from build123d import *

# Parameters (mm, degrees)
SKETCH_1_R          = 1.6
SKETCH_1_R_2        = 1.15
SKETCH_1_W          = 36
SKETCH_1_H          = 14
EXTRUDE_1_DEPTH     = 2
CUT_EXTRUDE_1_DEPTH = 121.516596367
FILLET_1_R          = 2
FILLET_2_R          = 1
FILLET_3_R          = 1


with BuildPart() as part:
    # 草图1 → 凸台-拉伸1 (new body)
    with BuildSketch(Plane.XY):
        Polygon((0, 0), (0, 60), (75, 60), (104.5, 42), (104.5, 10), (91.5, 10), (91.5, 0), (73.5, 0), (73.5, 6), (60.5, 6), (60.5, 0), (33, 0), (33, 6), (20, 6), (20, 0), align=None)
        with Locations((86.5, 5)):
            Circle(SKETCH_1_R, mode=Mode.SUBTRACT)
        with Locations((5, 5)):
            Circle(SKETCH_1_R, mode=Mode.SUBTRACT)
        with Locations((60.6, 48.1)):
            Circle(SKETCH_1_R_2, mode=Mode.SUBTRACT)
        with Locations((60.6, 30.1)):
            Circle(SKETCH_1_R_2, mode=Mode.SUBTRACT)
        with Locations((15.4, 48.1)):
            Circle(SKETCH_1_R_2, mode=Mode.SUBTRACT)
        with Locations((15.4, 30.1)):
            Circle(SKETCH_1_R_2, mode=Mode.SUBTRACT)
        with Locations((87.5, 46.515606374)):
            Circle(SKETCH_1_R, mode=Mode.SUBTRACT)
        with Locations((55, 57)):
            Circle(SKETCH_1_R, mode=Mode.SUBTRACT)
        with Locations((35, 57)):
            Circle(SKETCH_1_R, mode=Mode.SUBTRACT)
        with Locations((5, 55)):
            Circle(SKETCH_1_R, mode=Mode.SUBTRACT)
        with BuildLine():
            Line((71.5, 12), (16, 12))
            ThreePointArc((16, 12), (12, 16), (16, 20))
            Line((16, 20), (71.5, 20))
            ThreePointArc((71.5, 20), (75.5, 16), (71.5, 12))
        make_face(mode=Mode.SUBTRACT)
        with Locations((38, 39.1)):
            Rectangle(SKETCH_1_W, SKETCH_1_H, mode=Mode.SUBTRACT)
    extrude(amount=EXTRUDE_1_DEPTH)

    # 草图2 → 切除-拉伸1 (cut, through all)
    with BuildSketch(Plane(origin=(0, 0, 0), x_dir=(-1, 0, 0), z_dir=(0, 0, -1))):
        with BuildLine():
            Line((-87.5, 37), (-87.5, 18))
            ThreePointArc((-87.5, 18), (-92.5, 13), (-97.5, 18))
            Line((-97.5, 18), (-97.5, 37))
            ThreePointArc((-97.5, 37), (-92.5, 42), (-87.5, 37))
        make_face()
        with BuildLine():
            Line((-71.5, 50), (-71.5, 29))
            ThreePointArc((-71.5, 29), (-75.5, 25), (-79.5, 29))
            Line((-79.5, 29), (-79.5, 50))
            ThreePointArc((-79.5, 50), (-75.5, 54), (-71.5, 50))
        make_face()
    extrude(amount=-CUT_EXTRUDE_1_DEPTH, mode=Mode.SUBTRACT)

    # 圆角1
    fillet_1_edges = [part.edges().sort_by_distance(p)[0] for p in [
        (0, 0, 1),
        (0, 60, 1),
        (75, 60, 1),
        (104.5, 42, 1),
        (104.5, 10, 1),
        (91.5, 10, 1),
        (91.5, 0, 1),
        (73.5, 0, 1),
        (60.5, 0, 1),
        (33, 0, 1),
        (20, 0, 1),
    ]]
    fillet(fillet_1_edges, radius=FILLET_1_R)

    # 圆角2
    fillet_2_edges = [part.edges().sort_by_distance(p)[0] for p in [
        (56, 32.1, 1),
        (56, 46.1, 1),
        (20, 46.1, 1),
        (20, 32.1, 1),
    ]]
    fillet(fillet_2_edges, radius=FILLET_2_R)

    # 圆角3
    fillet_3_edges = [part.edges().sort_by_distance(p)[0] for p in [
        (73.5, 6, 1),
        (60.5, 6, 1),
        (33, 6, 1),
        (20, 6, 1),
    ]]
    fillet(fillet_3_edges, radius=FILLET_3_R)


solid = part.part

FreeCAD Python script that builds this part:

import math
import FreeCAD as App
import Part
import Sketcher

V = App.Vector


def edges_at(feature, points):
    """Names of the edges that pass closest to the given points."""
    edges = feature.Shape.Edges
    near = lambda p: min(range(len(edges)), key=lambda i: edges[i].distToShape(Part.Vertex(*p))[0])
    return sorted({f"Edge{near(p) + 1}" for p in points})

doc = App.newDocument("Part")
params = doc.addObject("Spreadsheet::Sheet", "Params")
for row, (alias, value) in enumerate([
    ("sketch1_radius", "4 mm"),
    ("sketch1_diameter", "3.2 mm"),
    ("sketch1_diameter2", "2.3 mm"),
    ("sketch1_width", "20 mm"),
    ("sketch1_width2", "13 mm"),
    ("pad1_length", "2 mm"),
    ("sketch2_radius", "5 mm"),
    ("sketch2_radius2", "4 mm"),
    ("sketch2_height", "19 mm"),
    ("sketch2_height2", "21 mm"),
    ("fillet_radius", "2 mm"),
    ("fillet2_radius", "1 mm"),
    ("fillet3_radius", "1 mm"),
], start=1):
    params.set(f"A{row}", alias)
    params.set(f"B{row}", "=" + value)
    params.setAlias(f"B{row}", alias)

body = doc.addObject("PartDesign::Body", "Body")

# Sketch on XY plane
sketch1 = body.newObject("Sketcher::SketchObject", "Sketch")
sketch1.AttachmentSupport = (doc.getObject("XY_Plane"), [""])
sketch1.MapMode = "FlatFace"
sketch1.addGeometry([
    Part.LineSegment(V(0, 60, 0), V(0, 0, 0)),  # 0
    Part.LineSegment(V(0, 0, 0), V(20, 0, 0)),  # 1
    Part.LineSegment(V(20, 0, 0), V(20, 6, 0)),  # 2
    Part.LineSegment(V(20, 6, 0), V(33, 6, 0)),  # 3
    Part.LineSegment(V(33, 6, 0), V(33, 0, 0)),  # 4
    Part.LineSegment(V(33, 0, 0), V(60.5, 0, 0)),  # 5
    Part.LineSegment(V(60.5, 0, 0), V(60.5, 6, 0)),  # 6
    Part.LineSegment(V(60.5, 6, 0), V(73.5, 6, 0)),  # 7
    Part.LineSegment(V(73.5, 6, 0), V(73.5, 0, 0)),  # 8
    Part.LineSegment(V(73.5, 0, 0), V(91.5, 0, 0)),  # 9
    Part.LineSegment(V(91.5, 0, 0), V(91.5, 10, 0)),  # 10
    Part.LineSegment(V(91.5, 10, 0), V(104.5, 10, 0)),  # 11
    Part.LineSegment(V(104.5, 10, 0), V(104.5, 42, 0)),  # 12
    Part.LineSegment(V(104.5, 42, 0), V(75, 60, 0)),  # 13
    Part.LineSegment(V(75, 60, 0), V(0, 60, 0)),  # 14
    Part.Circle(V(86.5, 5, 0), V(0, 0, 1), 1.6),  # 15
    Part.Circle(V(60.6, 30.1, 0), V(0, 0, 1), 1.15),  # 16
    Part.LineSegment(V(71.5, 12, 0), V(16, 12, 0)),  # 17
    Part.ArcOfCircle(Part.Circle(V(16, 16, 0), V(0, 0, 1), 4), math.radians(90), math.radians(270)),  # 18
    Part.LineSegment(V(16, 20, 0), V(71.5, 20, 0)),  # 19
    Part.ArcOfCircle(Part.Circle(V(71.5, 16, 0), V(0, 0, 1), 4), math.radians(-90), math.radians(90)),  # 20
    Part.Circle(V(5, 5, 0), V(0, 0, 1), 1.6),  # 21
    Part.Circle(V(15.4, 30.1, 0), V(0, 0, 1), 1.15),  # 22
    Part.Circle(V(87.5, 46.515606, 0), V(0, 0, 1), 1.6),  # 23
    Part.Circle(V(60.6, 48.1, 0), V(0, 0, 1), 1.15),  # 24
    Part.Circle(V(55, 57, 0), V(0, 0, 1), 1.6),  # 25
    Part.LineSegment(V(20, 32.1, 0), V(20, 46.1, 0)),  # 26
    Part.LineSegment(V(20, 46.1, 0), V(56, 46.1, 0)),  # 27
    Part.LineSegment(V(56, 46.1, 0), V(56, 32.1, 0)),  # 28
    Part.LineSegment(V(56, 32.1, 0), V(20, 32.1, 0)),  # 29
    Part.Circle(V(35, 57, 0), V(0, 0, 1), 1.6),  # 30
    Part.Circle(V(15.4, 48.1, 0), V(0, 0, 1), 1.15),  # 31
    Part.Circle(V(5, 55, 0), V(0, 0, 1), 1.6),  # 32
], False)
sketch1.addConstraint([
    Sketcher.Constraint("Coincident", 0, 2, 1, 1),
    Sketcher.Constraint("Coincident", 1, 2, 2, 1),
    Sketcher.Constraint("Coincident", 2, 2, 3, 1),
    Sketcher.Constraint("Coincident", 3, 2, 4, 1),
    Sketcher.Constraint("Coincident", 4, 2, 5, 1),
    Sketcher.Constraint("Coincident", 5, 2, 6, 1),
    Sketcher.Constraint("Coincident", 6, 2, 7, 1),
    Sketcher.Constraint("Coincident", 7, 2, 8, 1),
    Sketcher.Constraint("Coincident", 8, 2, 9, 1),
    Sketcher.Constraint("Coincident", 9, 2, 10, 1),
    Sketcher.Constraint("Coincident", 10, 2, 11, 1),
    Sketcher.Constraint("Coincident", 11, 2, 12, 1),
    Sketcher.Constraint("Coincident", 12, 2, 13, 1),
    Sketcher.Constraint("Coincident", 13, 2, 14, 1),
    Sketcher.Constraint("Coincident", 14, 2, 0, 1),
    Sketcher.Constraint("Tangent", 17, 2, 18, 2),
    Sketcher.Constraint("Tangent", 18, 1, 19, 1),
    Sketcher.Constraint("Tangent", 19, 2, 20, 2),
    Sketcher.Constraint("Tangent", 20, 1, 17, 1),
    Sketcher.Constraint("Coincident", 26, 2, 27, 1),
    Sketcher.Constraint("Coincident", 27, 2, 28, 1),
    Sketcher.Constraint("Coincident", 28, 2, 29, 1),
    Sketcher.Constraint("Coincident", 29, 2, 26, 1),
    Sketcher.Constraint("Vertical", 0),
    Sketcher.Constraint("Horizontal", 1),
    Sketcher.Constraint("Vertical", 2),
    Sketcher.Constraint("Horizontal", 3),
    Sketcher.Constraint("Vertical", 4),
    Sketcher.Constraint("Horizontal", 5),
    Sketcher.Constraint("Vertical", 6),
    Sketcher.Constraint("Horizontal", 7),
    Sketcher.Constraint("Vertical", 8),
    Sketcher.Constraint("Horizontal", 9),
    Sketcher.Constraint("Vertical", 10),
    Sketcher.Constraint("Horizontal", 11),
    Sketcher.Constraint("Vertical", 12),
    Sketcher.Constraint("Horizontal", 14),
    Sketcher.Constraint("Horizontal", 17),
    Sketcher.Constraint("Horizontal", 19),
    Sketcher.Constraint("Vertical", 26),
    Sketcher.Constraint("Horizontal", 27),
    Sketcher.Constraint("Vertical", 28),
    Sketcher.Constraint("Horizontal", 29),
    Sketcher.Constraint("Coincident", 0, 2, -1, 1),
    Sketcher.Constraint("Equal", 15, 21),
    Sketcher.Constraint("Equal", 16, 22),
    Sketcher.Constraint("Equal", 21, 23),
    Sketcher.Constraint("Equal", 22, 24),
    Sketcher.Constraint("Equal", 23, 25),
    Sketcher.Constraint("Equal", 25, 30),
    Sketcher.Constraint("Equal", 24, 31),
    Sketcher.Constraint("Equal", 30, 32),
    Sketcher.Constraint("PointOnObject", 4, 2, -1),
    Sketcher.Constraint("PointOnObject", 8, 2, -1),
    Sketcher.Constraint("Horizontal", 15, 3, 21, 3),
    Sketcher.Constraint("Horizontal", 16, 3, 22, 3),
    Sketcher.Constraint("Horizontal", 25, 3, 30, 3),
    Sketcher.Constraint("Horizontal", 24, 3, 31, 3),
    Sketcher.Constraint("Horizontal", 3, 2, 6, 2),
    Sketcher.Constraint("Vertical", 16, 3, 24, 3),
    Sketcher.Constraint("Vertical", 22, 3, 31, 3),
    Sketcher.Constraint("Vertical", 21, 3, 32, 3),
    Sketcher.Constraint("Vertical", 2, 2, 26, 2),
    Sketcher.Constraint("Equal", 3, 7),
    Sketcher.Constraint("Equal", 7, 11),
    Sketcher.Constraint("Radius", 18, 4.0),
    Sketcher.Constraint("Diameter", 15, 3.2),
    Sketcher.Constraint("Diameter", 16, 2.3),
    Sketcher.Constraint("DistanceX", 1, 1, 1, 2, 20.0),
    Sketcher.Constraint("DistanceX", 3, 1, 3, 2, 13.0),
    Sketcher.Constraint("DistanceX", 9, 1, 9, 2, 18.0),
    Sketcher.Constraint("DistanceX", 14, 2, 14, 1, 75.0),
    Sketcher.Constraint("DistanceX", 27, 1, 27, 2, 36.0),
    Sketcher.Constraint("DistanceY", 0, 2, 0, 1, 60.0),
    Sketcher.Constraint("DistanceY", 2, 1, 2, 2, 6.0),
    Sketcher.Constraint("DistanceY", 10, 1, 10, 2, 10.0),
    Sketcher.Constraint("DistanceY", 12, 1, 12, 2, 32.0),
    Sketcher.Constraint("DistanceY", 26, 1, 26, 2, 14.0),
    Sketcher.Constraint("DistanceX", 5, 1, 5, 2, 27.5),
    Sketcher.Constraint("DistanceX", 17, 2, 17, 1, 55.5),
    Sketcher.Constraint("DistanceY", -1, 1, 15, 3, 5.0),
    Sketcher.Constraint("DistanceX", -1, 1, 18, 3, 16.0),
    Sketcher.Constraint("DistanceY", -1, 1, 18, 3, 16.0),
    Sketcher.Constraint("DistanceX", -1, 1, 21, 3, 5.0),
    Sketcher.Constraint("DistanceX", -1, 1, 25, 3, 55.0),
    Sketcher.Constraint("DistanceY", -1, 1, 25, 3, 57.0),
    Sketcher.Constraint("DistanceX", -1, 1, 30, 3, 35.0),
    Sketcher.Constraint("DistanceY", -1, 1, 32, 3, 55.0),
    Sketcher.Constraint("DistanceX", 20, 3, 15, 3, 15.0),
    Sketcher.Constraint("DistanceX", 20, 3, 23, 3, 16.0),
    Sketcher.Constraint("DistanceY", 16, 3, 24, 3, 18.0),
    Sketcher.Constraint("DistanceY", 26, 2, 31, 3, 2.0),
    Sketcher.Constraint("DistanceX", -1, 1, 16, 3, 60.6),
    Sketcher.Constraint("DistanceY", -1, 1, 16, 3, 30.1),
    Sketcher.Constraint("DistanceX", -1, 1, 22, 3, 15.4),
    Sketcher.Constraint("DistanceY", -1, 1, 23, 3, 46.515606),
])
sketch1.setExpression("Constraints[65]", "Params.sketch1_radius")
sketch1.setExpression("Constraints[66]", "Params.sketch1_diameter")
sketch1.setExpression("Constraints[67]", "Params.sketch1_diameter2")
sketch1.setExpression("Constraints[68]", "Params.sketch1_width")
sketch1.setExpression("Constraints[69]", "Params.sketch1_width2")
pad1 = body.newObject("PartDesign::Pad", "Pad")
pad1.Profile = sketch1
pad1.setExpression("Length", "Params.pad1_length")

# Sketch on XY plane
sketch2 = body.newObject("Sketcher::SketchObject", "Sketch001")
sketch2.AttachmentSupport = (doc.getObject("XY_Plane"), [""])
sketch2.MapMode = "FlatFace"
sketch2.addGeometry([
    Part.LineSegment(V(87.5, 18, 0), V(87.5, 37, 0)),  # 0
    Part.ArcOfCircle(Part.Circle(V(92.5, 37, 0), V(0, 0, 1), 5), math.radians(0), math.radians(180)),  # 1
    Part.LineSegment(V(97.5, 37, 0), V(97.5, 18, 0)),  # 2
    Part.ArcOfCircle(Part.Circle(V(92.5, 18, 0), V(0, 0, 1), 5), math.radians(180), math.radians(360)),  # 3
    Part.LineSegment(V(71.5, 29, 0), V(71.5, 50, 0)),  # 4
    Part.ArcOfCircle(Part.Circle(V(75.5, 50, 0), V(0, 0, 1), 4), math.radians(0), math.radians(180)),  # 5
    Part.LineSegment(V(79.5, 50, 0), V(79.5, 29, 0)),  # 6
    Part.ArcOfCircle(Part.Circle(V(75.5, 29, 0), V(0, 0, 1), 4), math.radians(180), math.radians(360)),  # 7
], False)
sketch2.addConstraint([
    Sketcher.Constraint("Tangent", 0, 2, 1, 2),
    Sketcher.Constraint("Tangent", 1, 1, 2, 1),
    Sketcher.Constraint("Tangent", 2, 2, 3, 2),
    Sketcher.Constraint("Tangent", 3, 1, 0, 1),
    Sketcher.Constraint("Tangent", 4, 2, 5, 2),
    Sketcher.Constraint("Tangent", 5, 1, 6, 1),
    Sketcher.Constraint("Tangent", 6, 2, 7, 2),
    Sketcher.Constraint("Tangent", 7, 1, 4, 1),
    Sketcher.Constraint("Vertical", 0),
    Sketcher.Constraint("Vertical", 2),
    Sketcher.Constraint("Vertical", 4),
    Sketcher.Constraint("Vertical", 6),
    Sketcher.Constraint("Radius", 1, 5.0),
    Sketcher.Constraint("Radius", 5, 4.0),
    Sketcher.Constraint("DistanceY", 0, 1, 0, 2, 19.0),
    Sketcher.Constraint("DistanceY", 4, 1, 4, 2, 21.0),
    Sketcher.Constraint("DistanceY", -1, 1, 1, 3, 37.0),
    Sketcher.Constraint("DistanceY", -1, 1, 5, 3, 50.0),
    Sketcher.Constraint("DistanceX", 5, 3, 1, 3, 17.0),
    Sketcher.Constraint("DistanceX", -1, 1, 1, 3, 92.5),
])
sketch2.setExpression("Constraints[12]", "Params.sketch2_radius")
sketch2.setExpression("Constraints[13]", "Params.sketch2_radius2")
sketch2.setExpression("Constraints[14]", "Params.sketch2_height")
sketch2.setExpression("Constraints[15]", "Params.sketch2_height2")
pocket1 = body.newObject("PartDesign::Pocket", "Pocket")
pocket1.Profile = sketch2
pocket1.Type = "ThroughAll"
pocket1.Reversed = True
doc.recompute()

fillet = body.newObject("PartDesign::Fillet", "Fillet")
fillet.Base = (pocket1, edges_at(pocket1, [
    (0, 0, 1),
    (0, 60, 1),
    (75, 60, 1),
    (104.5, 42, 1),
    (104.5, 10, 1),
    (91.5, 10, 1),
    (91.5, 0, 1),
    (73.5, 0, 1),
    (60.5, 0, 1),
    (33, 0, 1),
    (20, 0, 1),
]))
fillet.setExpression("Radius", "Params.fillet_radius")
doc.recompute()

fillet2 = body.newObject("PartDesign::Fillet", "Fillet001")
fillet2.Base = (fillet, edges_at(fillet, [
    (56, 32.1, 1),
    (56, 46.1, 1),
    (20, 46.1, 1),
    (20, 32.1, 1),
]))
fillet2.setExpression("Radius", "Params.fillet2_radius")
doc.recompute()

fillet3 = body.newObject("PartDesign::Fillet", "Fillet002")
fillet3.Base = (fillet2, edges_at(fillet2, [
    (73.5, 6, 1),
    (60.5, 6, 1),
    (33, 6, 1),
    (20, 6, 1),
]))
fillet3.setExpression("Radius", "Params.fillet3_radius")

doc.recompute()
